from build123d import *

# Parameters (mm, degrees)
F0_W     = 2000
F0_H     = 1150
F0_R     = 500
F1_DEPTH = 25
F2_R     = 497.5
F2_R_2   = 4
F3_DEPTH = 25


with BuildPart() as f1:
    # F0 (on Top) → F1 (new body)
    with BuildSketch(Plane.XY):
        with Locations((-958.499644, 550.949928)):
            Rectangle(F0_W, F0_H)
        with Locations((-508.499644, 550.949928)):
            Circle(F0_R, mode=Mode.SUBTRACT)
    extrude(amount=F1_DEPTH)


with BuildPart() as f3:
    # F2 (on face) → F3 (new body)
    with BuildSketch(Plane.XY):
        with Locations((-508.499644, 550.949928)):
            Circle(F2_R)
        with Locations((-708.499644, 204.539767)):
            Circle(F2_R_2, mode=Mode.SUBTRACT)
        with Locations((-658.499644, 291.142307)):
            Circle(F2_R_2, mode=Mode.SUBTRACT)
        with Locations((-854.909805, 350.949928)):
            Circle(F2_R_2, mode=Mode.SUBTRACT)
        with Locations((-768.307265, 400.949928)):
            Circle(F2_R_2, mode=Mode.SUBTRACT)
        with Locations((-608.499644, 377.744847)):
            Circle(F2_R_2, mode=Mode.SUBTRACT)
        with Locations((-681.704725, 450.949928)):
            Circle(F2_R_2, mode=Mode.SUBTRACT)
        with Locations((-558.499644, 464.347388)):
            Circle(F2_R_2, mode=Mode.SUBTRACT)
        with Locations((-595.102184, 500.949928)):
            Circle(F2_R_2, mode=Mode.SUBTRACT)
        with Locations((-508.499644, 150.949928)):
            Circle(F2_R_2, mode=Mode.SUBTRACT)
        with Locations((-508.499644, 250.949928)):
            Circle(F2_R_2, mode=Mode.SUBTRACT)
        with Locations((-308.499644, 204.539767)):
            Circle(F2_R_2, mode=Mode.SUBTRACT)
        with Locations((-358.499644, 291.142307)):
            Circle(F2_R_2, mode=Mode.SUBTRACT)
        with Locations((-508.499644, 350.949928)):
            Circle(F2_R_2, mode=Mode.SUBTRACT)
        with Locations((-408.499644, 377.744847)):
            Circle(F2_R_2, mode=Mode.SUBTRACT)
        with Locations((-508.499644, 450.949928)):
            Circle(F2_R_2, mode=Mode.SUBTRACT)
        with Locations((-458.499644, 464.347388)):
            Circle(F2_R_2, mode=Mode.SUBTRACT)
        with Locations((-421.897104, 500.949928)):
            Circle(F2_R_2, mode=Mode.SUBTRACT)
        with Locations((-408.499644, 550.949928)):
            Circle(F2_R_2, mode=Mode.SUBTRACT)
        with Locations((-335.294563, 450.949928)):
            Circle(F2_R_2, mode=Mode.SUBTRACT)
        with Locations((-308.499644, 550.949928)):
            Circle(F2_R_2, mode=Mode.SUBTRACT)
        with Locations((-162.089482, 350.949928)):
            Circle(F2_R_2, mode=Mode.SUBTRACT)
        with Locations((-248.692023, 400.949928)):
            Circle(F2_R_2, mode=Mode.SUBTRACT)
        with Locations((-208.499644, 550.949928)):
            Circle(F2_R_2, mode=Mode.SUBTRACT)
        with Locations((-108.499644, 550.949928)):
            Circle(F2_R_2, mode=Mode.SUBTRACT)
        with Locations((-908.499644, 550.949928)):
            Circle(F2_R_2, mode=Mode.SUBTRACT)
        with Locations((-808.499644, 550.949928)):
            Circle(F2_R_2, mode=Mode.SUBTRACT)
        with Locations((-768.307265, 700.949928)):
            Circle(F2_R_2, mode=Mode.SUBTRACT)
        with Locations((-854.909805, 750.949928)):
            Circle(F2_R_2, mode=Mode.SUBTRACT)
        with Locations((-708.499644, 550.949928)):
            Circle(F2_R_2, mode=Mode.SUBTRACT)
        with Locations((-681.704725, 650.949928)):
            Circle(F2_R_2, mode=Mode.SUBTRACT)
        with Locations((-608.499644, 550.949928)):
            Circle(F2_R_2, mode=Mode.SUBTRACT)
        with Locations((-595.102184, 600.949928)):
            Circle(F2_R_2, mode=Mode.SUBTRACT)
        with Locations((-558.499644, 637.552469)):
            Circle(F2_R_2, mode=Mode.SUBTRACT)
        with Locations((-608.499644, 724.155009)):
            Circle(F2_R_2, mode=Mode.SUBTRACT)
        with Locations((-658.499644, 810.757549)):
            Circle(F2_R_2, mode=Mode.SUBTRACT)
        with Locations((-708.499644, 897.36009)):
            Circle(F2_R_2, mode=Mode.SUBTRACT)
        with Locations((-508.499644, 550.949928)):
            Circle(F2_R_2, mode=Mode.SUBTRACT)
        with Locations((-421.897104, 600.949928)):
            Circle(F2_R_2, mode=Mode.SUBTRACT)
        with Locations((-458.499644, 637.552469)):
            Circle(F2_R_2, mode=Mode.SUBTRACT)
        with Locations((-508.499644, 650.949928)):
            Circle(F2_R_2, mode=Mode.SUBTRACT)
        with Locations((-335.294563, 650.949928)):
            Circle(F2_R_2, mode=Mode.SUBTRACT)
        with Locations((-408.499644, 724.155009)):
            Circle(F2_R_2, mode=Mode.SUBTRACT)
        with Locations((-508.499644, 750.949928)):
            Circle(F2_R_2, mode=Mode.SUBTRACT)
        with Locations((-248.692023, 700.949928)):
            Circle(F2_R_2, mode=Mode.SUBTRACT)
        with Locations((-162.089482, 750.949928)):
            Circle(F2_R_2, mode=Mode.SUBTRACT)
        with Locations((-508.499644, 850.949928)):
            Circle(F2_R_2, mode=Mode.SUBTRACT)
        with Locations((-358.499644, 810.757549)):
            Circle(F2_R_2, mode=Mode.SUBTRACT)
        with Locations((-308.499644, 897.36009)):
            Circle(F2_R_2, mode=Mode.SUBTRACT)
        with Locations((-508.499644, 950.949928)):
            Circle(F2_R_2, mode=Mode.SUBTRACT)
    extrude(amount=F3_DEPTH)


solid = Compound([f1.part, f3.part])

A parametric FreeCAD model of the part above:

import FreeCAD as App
import Part
import Sketcher

V = App.Vector


def add_polygon(sketch, points):
    """Adds a closed chain of lines whose ends are joined by coincident constraints."""
    first, n = sketch.GeometryCount, len(points)
    for a, b in zip(points, points[1:] + points[:1]):
        sketch.addGeometry(Part.LineSegment(App.Vector(*a, 0), App.Vector(*b, 0)), False)
    for i in range(n):
        sketch.addConstraint(Sketcher.Constraint("Coincident", first + i, 2, first + (i + 1) % n, 1))

doc = App.newDocument("Part")
body = doc.addObject("PartDesign::Body", "Body")

sketch1 = body.newObject("Sketcher::SketchObject", "Sketch")
sketch1.AttachmentSupport = (doc.getObject("XY_Plane"), [""])
sketch1.MapMode = "FlatFace"
add_polygon(sketch1, [(-1958.499644, 1125.949928), (-1958.499644, -24.050072), (41.500356, -24.050072), (41.500356, 1125.949928)])
sketch1.addGeometry(Part.Circle(V(-508.499644, 550.949928, 0), V(0, 0, 1), 500), False)
sketch1.addConstraint([
    Sketcher.Constraint("Vertical", 0),
    Sketcher.Constraint("Horizontal", 1),
    Sketcher.Constraint("Vertical", 2),
    Sketcher.Constraint("Horizontal", 3),
    Sketcher.Constraint("Diameter", 4, 1000.0),
    Sketcher.Constraint("DistanceX", 1, 1, 1, 2, 2000.0),
    Sketcher.Constraint("DistanceY", 0, 2, 0, 1, 1150.0),
    Sketcher.Constraint("DistanceX", 0, 2, 4, 3, 1450.0),
    Sketcher.Constraint("DistanceY", 0, 2, 4, 3, 575.0),
    Sketcher.Constraint("DistanceY", -1, 1, 4, 3, 550.949928),
    Sketcher.Constraint("DistanceX", 4, 3, -1, 1, 508.499644),
])
pad1 = body.newObject("PartDesign::Pad", "Pad")
pad1.Profile = sketch1
pad1.Length = 25
body2 = doc.addObject("PartDesign::Body", "Body001")

sketch2 = body2.newObject("Sketcher::SketchObject", "Sketch001")
sketch2.AttachmentSupport = (doc.getObject("XY_Plane001"), [""])
sketch2.MapMode = "FlatFace"
sketch2.addGeometry([
    Part.Circle(V(-508.499644, 550.949928, 0), V(0, 0, 1), 497.5),
    Part.Circle(V(-708.499644, 204.539767, 0), V(0, 0, 1), 4),
    Part.Circle(V(-658.499644, 291.142307, 0), V(0, 0, 1), 4),
    Part.Circle(V(-854.909805, 350.949928, 0), V(0, 0, 1), 4),
    Part.Circle(V(-768.307265, 400.949928, 0), V(0, 0, 1), 4),
    Part.Circle(V(-608.499644, 377.744847, 0), V(0, 0, 1), 4),
    Part.Circle(V(-681.704725, 450.949928, 0), V(0, 0, 1), 4),
    Part.Circle(V(-558.499644, 464.347388, 0), V(0, 0, 1), 4),
    Part.Circle(V(-595.102184, 500.949928, 0), V(0, 0, 1), 4),
    Part.Circle(V(-508.499644, 150.949928, 0), V(0, 0, 1), 4),
    Part.Circle(V(-308.499644, 204.539767, 0), V(0, 0, 1), 4),
    Part.Circle(V(-508.499644, 250.949928, 0), V(0, 0, 1), 4),
    Part.Circle(V(-358.499644, 291.142307, 0), V(0, 0, 1), 4),
    Part.Circle(V(-508.499644, 350.949928, 0), V(0, 0, 1), 4),
    Part.Circle(V(-408.499644, 377.744847, 0), V(0, 0, 1), 4),
    Part.Circle(V(-508.499644, 450.949928, 0), V(0, 0, 1), 4),
    Part.Circle(V(-458.499644, 464.347388, 0), V(0, 0, 1), 4),
    Part.Circle(V(-421.897104, 500.949928, 0), V(0, 0, 1), 4),
    Part.Circle(V(-335.294563, 450.949928, 0), V(0, 0, 1), 4),
    Part.Circle(V(-248.692023, 400.949928, 0), V(0, 0, 1), 4),
    Part.Circle(V(-162.089482, 350.949928, 0), V(0, 0, 1), 4),
    Part.Circle(V(-908.499644, 550.949928, 0), V(0, 0, 1), 4),
    Part.Circle(V(-808.499644, 550.949928, 0), V(0, 0, 1), 4),
    Part.Circle(V(-854.909805, 750.949928, 0), V(0, 0, 1), 4),
    Part.Circle(V(-768.307265, 700.949928, 0), V(0, 0, 1), 4),
    Part.Circle(V(-708.499644, 550.949928, 0), V(0, 0, 1), 4),
    Part.Circle(V(-681.704725, 650.949928, 0), V(0, 0, 1), 4),
    Part.Circle(V(-608.499644, 550.949928, 0), V(0, 0, 1), 4),
    Part.Circle(V(-595.102184, 600.949928, 0), V(0, 0, 1), 4),
    Part.Circle(V(-558.499644, 637.552469, 0), V(0, 0, 1), 4),
    Part.Circle(V(-608.499644, 724.155009, 0), V(0, 0, 1), 4),
    Part.Circle(V(-658.499644, 810.757549, 0), V(0, 0, 1), 4),
    Part.Circle(V(-708.499644, 897.36009, 0), V(0, 0, 1), 4),
    Part.Circle(V(-508.499644, 550.949928, 0), V(0, 0, 1), 4),
    Part.Circle(V(-408.499644, 550.949928, 0), V(0, 0, 1), 4),
    Part.Circle(V(-421.897104, 600.949928, 0), V(0, 0, 1), 4),
    Part.Circle(V(-508.499644, 650.949928, 0), V(0, 0, 1), 4),
    Part.Circle(V(-458.499644, 637.552469, 0), V(0, 0, 1), 4),
    Part.Circle(V(-308.499644, 550.949928, 0), V(0, 0, 1), 4),
    Part.Circle(V(-335.294563, 650.949928, 0), V(0, 0, 1), 4),
    Part.Circle(V(-508.499644, 750.949928, 0), V(0, 0, 1), 4),
    Part.Circle(V(-408.499644, 724.155009, 0), V(0, 0, 1), 4),
    Part.Circle(V(-208.499644, 550.949928, 0), V(0, 0, 1), 4),
    Part.Circle(V(-108.499644, 550.949928, 0), V(0, 0, 1), 4),
    Part.Circle(V(-248.692023, 700.949928, 0), V(0, 0, 1), 4),
    Part.Circle(V(-162.089482, 750.949928, 0), V(0, 0, 1), 4),
    Part.Circle(V(-508.499644, 850.949928, 0), V(0, 0, 1), 4),
    Part.Circle(V(-358.499644, 810.757549, 0), V(0, 0, 1), 4),
    Part.Circle(V(-508.499644, 950.949928, 0), V(0, 0, 1), 4),
    Part.Circle(V(-308.499644, 897.36009, 0), V(0, 0, 1), 4),
], False)
sketch2.addConstraint([
    Sketcher.Constraint("Coincident", 33, 3, 0, 3),
    Sketcher.Constraint("Equal", 1, 2),
    Sketcher.Constraint("Equal", 2, 3),
    Sketcher.Constraint("Equal", 3, 4),
    Sketcher.Constraint("Equal", 4, 5),
    Sketcher.Constraint("Equal", 5, 6),
    Sketcher.Constraint("Equal", 6, 7),
    Sketcher.Constraint("Equal", 7, 8),
    Sketcher.Constraint("Equal", 8, 9),
    Sketcher.Constraint("Equal", 9, 10),
    Sketcher.Constraint("Equal", 10, 11),
    Sketcher.Constraint("Equal", 11, 12),
    Sketcher.Constraint("Equal", 12, 13),
    Sketcher.Constraint("Equal", 13, 14),
    Sketcher.Constraint("Equal", 14, 15),
    Sketcher.Constraint("Equal", 15, 16),
    Sketcher.Constraint("Equal", 16, 17),
    Sketcher.Constraint("Equal", 17, 18),
    Sketcher.Constraint("Equal", 18, 19),
    Sketcher.Constraint("Equal", 19, 20),
    Sketcher.Constraint("Equal", 20, 21),
    Sketcher.Constraint("Equal", 21, 22),
    Sketcher.Constraint("Equal", 22, 23),
    Sketcher.Constraint("Equal", 23, 24),
    Sketcher.Constraint("Equal", 24, 25),
    Sketcher.Constraint("Equal", 25, 26),
    Sketcher.Constraint("Equal", 26, 27),
    Sketcher.Constraint("Equal", 27, 28),
    Sketcher.Constraint("Equal", 28, 29),
    Sketcher.Constraint("Equal", 29, 30),
    Sketcher.Constraint("Equal", 30, 31),
    Sketcher.Constraint("Equal", 31, 32),
    Sketcher.Constraint("Equal", 32, 33),
    Sketcher.Constraint("Equal", 33, 34),
    Sketcher.Constraint("Equal", 34, 35),
    Sketcher.Constraint("Equal", 35, 36),
    Sketcher.Constraint("Equal", 36, 37),
    Sketcher.Constraint("Equal", 37, 38),
    Sketcher.Constraint("Equal", 38, 39),
    Sketcher.Constraint("Equal", 39, 40),
    Sketcher.Constraint("Equal", 40, 41),
    Sketcher.Constraint("Equal", 41, 42),
    Sketcher.Constraint("Equal", 42, 43),
    Sketcher.Constraint("Equal", 43, 44),
    Sketcher.Constraint("Equal", 44, 45),
    Sketcher.Constraint("Equal", 45, 46),
    Sketcher.Constraint("Equal", 46, 47),
    Sketcher.Constraint("Equal", 47, 48),
    Sketcher.Constraint("Equal", 48, 49),
    Sketcher.Constraint("Horizontal", 1, 3, 10, 3),
    Sketcher.Constraint("Horizontal", 2, 3, 12, 3),
    Sketcher.Constraint("Horizontal", 3, 3, 13, 3),
    Sketcher.Constraint("Horizontal", 5, 3, 14, 3),
    Sketcher.Constraint("Horizontal", 6, 3, 15, 3),
    Sketcher.Constraint("Horizontal", 7, 3, 16, 3),
    Sketcher.Constraint("Horizontal", 8, 3, 17, 3),
    Sketcher.Constraint("Horizontal", 15, 3, 18, 3),
    Sketcher.Constraint("Horizontal", 4, 3, 19, 3),
    Sketcher.Constraint("Horizontal", 13, 3, 20, 3),
    Sketcher.Constraint("Horizontal", 0, 3, 21, 3),
    Sketcher.Constraint("Horizontal", 21, 3, 22, 3),
    Sketcher.Constraint("Horizontal", 22, 3, 25, 3),
    Sketcher.Constraint("Horizontal", 25, 3, 27, 3),
    Sketcher.Constraint("Horizontal", 33, 3, 34, 3),
    Sketcher.Constraint("Horizontal", 28, 3, 35, 3),
    Sketcher.Constraint("Horizontal", 26, 3, 36, 3),
    Sketcher.Constraint("Horizontal", 29, 3, 37, 3),
    Sketcher.Constraint("Horizontal", 34, 3, 38, 3),
    Sketcher.Constraint("Horizontal", 36, 3, 39, 3),
    Sketcher.Constraint("Horizontal", 23, 3, 40, 3),
    Sketcher.Constraint("Horizontal", 30, 3, 41, 3),
    Sketcher.Constraint("Horizontal", 38, 3, 42, 3),
    Sketcher.Constraint("Horizontal", 42, 3, 43, 3),
    Sketcher.Constraint("Horizontal", 24, 3, 44, 3),
    Sketcher.Constraint("Horizontal", 40, 3, 45, 3),
    Sketcher.Constraint("Horizontal", 31, 3, 47, 3),
    Sketcher.Constraint("Horizontal", 32, 3, 49, 3),
    Sketcher.Constraint("Vertical", 0, 3, 9, 3),
    Sketcher.Constraint("Vertical", 9, 3, 11, 3),
    Sketcher.Constraint("Vertical", 11, 3, 13, 3),
    Sketcher.Constraint("Vertical", 13, 3, 15, 3),
    Sketcher.Constraint("Vertical", 3, 3, 23, 3),
    Sketcher.Constraint("Vertical", 4, 3, 24, 3),
    Sketcher.Constraint("Vertical", 1, 3, 25, 3),
    Sketcher.Constraint("Vertical", 6, 3, 26, 3),
    Sketcher.Constraint("Vertical", 5, 3, 27, 3),
    Sketcher.Constraint("Vertical", 8, 3, 28, 3),
    Sketcher.Constraint("Vertical", 7, 3, 29, 3),
    Sketcher.Constraint("Vertical", 27, 3, 30, 3),
    Sketcher.Constraint("Vertical", 2, 3, 31, 3),
    Sketcher.Constraint("Vertical", 25, 3, 32, 3),
    Sketcher.Constraint("Vertical", 14, 3, 34, 3),
    Sketcher.Constraint("Vertical", 17, 3, 35, 3),
    Sketcher.Constraint("Vertical", 33, 3, 36, 3),
    Sketcher.Constraint("Vertical", 16, 3, 37, 3),
    Sketcher.Constraint("Vertical", 10, 3, 38, 3),
    Sketcher.Constraint("Vertical", 18, 3, 39, 3),
    Sketcher.Constraint("Vertical", 36, 3, 40, 3),
    Sketcher.Constraint("Vertical", 34, 3, 41, 3),
    Sketcher.Constraint("Vertical", 19, 3, 44, 3),
    Sketcher.Constraint("Vertical", 20, 3, 45, 3),
    Sketcher.Constraint("Vertical", 40, 3, 46, 3),
    Sketcher.Constraint("Vertical", 12, 3, 47, 3),
    Sketcher.Constraint("Vertical", 46, 3, 48, 3),
    Sketcher.Constraint("Vertical", 38, 3, 49, 3),
    Sketcher.Constraint("Diameter", 0, 995.0),
    Sketcher.Constraint("Diameter", 1, 8.0),
    Sketcher.Constraint("DistanceX", 1, 3, 0, 3, 200.0),
    Sketcher.Constraint("DistanceX", 1, 3, 2, 3, 50.0),
    Sketcher.Constraint("DistanceY", 3, 3, 0, 3, 200.0),
    Sketcher.Constraint("DistanceY", 3, 3, 4, 3, 50.0),
    Sketcher.Constraint("DistanceX", 2, 3, 5, 3, 50.0),
    Sketcher.Constraint("DistanceY", 4, 3, 6, 3, 50.0),
    Sketcher.Constraint("DistanceX", 7, 3, 0, 3, 50.0),
    Sketcher.Constraint("DistanceY", 8, 3, 0, 3, 50.0),
    Sketcher.Constraint("DistanceY", 9, 3, 6, 3, 300.0),
    Sketcher.Constraint("DistanceX", 9, 3, 10, 3, 200.0),
    Sketcher.Constraint("DistanceY", 9, 3, 11, 3, 100.0),
    Sketcher.Constraint("DistanceX", 12, 3, 10, 3, 50.0),
    Sketcher.Constraint("DistanceX", 14, 3, 12, 3, 50.0),
    Sketcher.Constraint("DistanceX", 15, 3, 16, 3, 50.0),
    Sketcher.Constraint("DistanceX", 21, 3, 5, 3, 300.0),
    Sketcher.Constraint("DistanceX", 21, 3, 22, 3, 100.0),
    Sketcher.Constraint("DistanceY", 22, 3, 23, 3, 200.0),
    Sketcher.Constraint("DistanceY", 24, 3, 23, 3, 50.0),
    Sketcher.Constraint("DistanceY", 26, 3, 24, 3, 50.0),
    Sketcher.Constraint("DistanceY", 27, 3, 28, 3, 50.0),
    Sketcher.Constraint("DistanceX", 38, 3, 42, 3, 100.0),
    Sketcher.Constraint("DistanceX", 42, 3, 43, 3, 100.0),
    Sketcher.Constraint("DistanceY", 40, 3, 46, 3, 100.0),
    Sketcher.Constraint("DistanceY", 46, 3, 48, 3, 100.0),
    Sketcher.Constraint("DistanceY", -1, 1, 0, 3, 550.949928),
    Sketcher.Constraint("DistanceY", -1, 1, 7, 3, 464.347388),
    Sketcher.Constraint("DistanceX", 20, 3, -1, 1, 162.089482),
    Sketcher.Constraint("DistanceY", -1, 1, 29, 3, 637.552469),
    Sketcher.Constraint("DistanceY", -1, 1, 30, 3, 724.155009),
    Sketcher.Constraint("DistanceY", -1, 1, 31, 3, 810.757549),
    Sketcher.Constraint("DistanceY", -1, 1, 32, 3, 897.36009),
    Sketcher.Constraint("DistanceY", 1, 3, 0, 3, 346.410161),
    Sketcher.Constraint("DistanceY", 1, 3, 2, 3, 86.60254),
    Sketcher.Constraint("DistanceX", 3, 3, 2, 3, 196.410161),
    Sketcher.Constraint("DistanceX", 3, 3, 4, 3, 86.60254),
    Sketcher.Constraint("DistanceY", 2, 3, 5, 3, 86.60254),
    Sketcher.Constraint("DistanceX", 4, 3, 6, 3, 86.60254),
    Sketcher.Constraint("DistanceX", 8, 3, 7, 3, 36.60254),
    Sketcher.Constraint("DistanceX", 16, 3, 17, 3, 36.60254),
    Sketcher.Constraint("DistanceX", 17, 3, 18, 3, 86.602541),
    Sketcher.Constraint("DistanceX", 18, 3, 19, 3, 86.60254),
    Sketcher.Constraint("DistanceX", 19, 3, 20, 3, 86.602541),
])
pad2 = body2.newObject("PartDesign::Pad", "Pad001")
pad2.Profile = sketch2
pad2.Length = 25

doc.recompute()
